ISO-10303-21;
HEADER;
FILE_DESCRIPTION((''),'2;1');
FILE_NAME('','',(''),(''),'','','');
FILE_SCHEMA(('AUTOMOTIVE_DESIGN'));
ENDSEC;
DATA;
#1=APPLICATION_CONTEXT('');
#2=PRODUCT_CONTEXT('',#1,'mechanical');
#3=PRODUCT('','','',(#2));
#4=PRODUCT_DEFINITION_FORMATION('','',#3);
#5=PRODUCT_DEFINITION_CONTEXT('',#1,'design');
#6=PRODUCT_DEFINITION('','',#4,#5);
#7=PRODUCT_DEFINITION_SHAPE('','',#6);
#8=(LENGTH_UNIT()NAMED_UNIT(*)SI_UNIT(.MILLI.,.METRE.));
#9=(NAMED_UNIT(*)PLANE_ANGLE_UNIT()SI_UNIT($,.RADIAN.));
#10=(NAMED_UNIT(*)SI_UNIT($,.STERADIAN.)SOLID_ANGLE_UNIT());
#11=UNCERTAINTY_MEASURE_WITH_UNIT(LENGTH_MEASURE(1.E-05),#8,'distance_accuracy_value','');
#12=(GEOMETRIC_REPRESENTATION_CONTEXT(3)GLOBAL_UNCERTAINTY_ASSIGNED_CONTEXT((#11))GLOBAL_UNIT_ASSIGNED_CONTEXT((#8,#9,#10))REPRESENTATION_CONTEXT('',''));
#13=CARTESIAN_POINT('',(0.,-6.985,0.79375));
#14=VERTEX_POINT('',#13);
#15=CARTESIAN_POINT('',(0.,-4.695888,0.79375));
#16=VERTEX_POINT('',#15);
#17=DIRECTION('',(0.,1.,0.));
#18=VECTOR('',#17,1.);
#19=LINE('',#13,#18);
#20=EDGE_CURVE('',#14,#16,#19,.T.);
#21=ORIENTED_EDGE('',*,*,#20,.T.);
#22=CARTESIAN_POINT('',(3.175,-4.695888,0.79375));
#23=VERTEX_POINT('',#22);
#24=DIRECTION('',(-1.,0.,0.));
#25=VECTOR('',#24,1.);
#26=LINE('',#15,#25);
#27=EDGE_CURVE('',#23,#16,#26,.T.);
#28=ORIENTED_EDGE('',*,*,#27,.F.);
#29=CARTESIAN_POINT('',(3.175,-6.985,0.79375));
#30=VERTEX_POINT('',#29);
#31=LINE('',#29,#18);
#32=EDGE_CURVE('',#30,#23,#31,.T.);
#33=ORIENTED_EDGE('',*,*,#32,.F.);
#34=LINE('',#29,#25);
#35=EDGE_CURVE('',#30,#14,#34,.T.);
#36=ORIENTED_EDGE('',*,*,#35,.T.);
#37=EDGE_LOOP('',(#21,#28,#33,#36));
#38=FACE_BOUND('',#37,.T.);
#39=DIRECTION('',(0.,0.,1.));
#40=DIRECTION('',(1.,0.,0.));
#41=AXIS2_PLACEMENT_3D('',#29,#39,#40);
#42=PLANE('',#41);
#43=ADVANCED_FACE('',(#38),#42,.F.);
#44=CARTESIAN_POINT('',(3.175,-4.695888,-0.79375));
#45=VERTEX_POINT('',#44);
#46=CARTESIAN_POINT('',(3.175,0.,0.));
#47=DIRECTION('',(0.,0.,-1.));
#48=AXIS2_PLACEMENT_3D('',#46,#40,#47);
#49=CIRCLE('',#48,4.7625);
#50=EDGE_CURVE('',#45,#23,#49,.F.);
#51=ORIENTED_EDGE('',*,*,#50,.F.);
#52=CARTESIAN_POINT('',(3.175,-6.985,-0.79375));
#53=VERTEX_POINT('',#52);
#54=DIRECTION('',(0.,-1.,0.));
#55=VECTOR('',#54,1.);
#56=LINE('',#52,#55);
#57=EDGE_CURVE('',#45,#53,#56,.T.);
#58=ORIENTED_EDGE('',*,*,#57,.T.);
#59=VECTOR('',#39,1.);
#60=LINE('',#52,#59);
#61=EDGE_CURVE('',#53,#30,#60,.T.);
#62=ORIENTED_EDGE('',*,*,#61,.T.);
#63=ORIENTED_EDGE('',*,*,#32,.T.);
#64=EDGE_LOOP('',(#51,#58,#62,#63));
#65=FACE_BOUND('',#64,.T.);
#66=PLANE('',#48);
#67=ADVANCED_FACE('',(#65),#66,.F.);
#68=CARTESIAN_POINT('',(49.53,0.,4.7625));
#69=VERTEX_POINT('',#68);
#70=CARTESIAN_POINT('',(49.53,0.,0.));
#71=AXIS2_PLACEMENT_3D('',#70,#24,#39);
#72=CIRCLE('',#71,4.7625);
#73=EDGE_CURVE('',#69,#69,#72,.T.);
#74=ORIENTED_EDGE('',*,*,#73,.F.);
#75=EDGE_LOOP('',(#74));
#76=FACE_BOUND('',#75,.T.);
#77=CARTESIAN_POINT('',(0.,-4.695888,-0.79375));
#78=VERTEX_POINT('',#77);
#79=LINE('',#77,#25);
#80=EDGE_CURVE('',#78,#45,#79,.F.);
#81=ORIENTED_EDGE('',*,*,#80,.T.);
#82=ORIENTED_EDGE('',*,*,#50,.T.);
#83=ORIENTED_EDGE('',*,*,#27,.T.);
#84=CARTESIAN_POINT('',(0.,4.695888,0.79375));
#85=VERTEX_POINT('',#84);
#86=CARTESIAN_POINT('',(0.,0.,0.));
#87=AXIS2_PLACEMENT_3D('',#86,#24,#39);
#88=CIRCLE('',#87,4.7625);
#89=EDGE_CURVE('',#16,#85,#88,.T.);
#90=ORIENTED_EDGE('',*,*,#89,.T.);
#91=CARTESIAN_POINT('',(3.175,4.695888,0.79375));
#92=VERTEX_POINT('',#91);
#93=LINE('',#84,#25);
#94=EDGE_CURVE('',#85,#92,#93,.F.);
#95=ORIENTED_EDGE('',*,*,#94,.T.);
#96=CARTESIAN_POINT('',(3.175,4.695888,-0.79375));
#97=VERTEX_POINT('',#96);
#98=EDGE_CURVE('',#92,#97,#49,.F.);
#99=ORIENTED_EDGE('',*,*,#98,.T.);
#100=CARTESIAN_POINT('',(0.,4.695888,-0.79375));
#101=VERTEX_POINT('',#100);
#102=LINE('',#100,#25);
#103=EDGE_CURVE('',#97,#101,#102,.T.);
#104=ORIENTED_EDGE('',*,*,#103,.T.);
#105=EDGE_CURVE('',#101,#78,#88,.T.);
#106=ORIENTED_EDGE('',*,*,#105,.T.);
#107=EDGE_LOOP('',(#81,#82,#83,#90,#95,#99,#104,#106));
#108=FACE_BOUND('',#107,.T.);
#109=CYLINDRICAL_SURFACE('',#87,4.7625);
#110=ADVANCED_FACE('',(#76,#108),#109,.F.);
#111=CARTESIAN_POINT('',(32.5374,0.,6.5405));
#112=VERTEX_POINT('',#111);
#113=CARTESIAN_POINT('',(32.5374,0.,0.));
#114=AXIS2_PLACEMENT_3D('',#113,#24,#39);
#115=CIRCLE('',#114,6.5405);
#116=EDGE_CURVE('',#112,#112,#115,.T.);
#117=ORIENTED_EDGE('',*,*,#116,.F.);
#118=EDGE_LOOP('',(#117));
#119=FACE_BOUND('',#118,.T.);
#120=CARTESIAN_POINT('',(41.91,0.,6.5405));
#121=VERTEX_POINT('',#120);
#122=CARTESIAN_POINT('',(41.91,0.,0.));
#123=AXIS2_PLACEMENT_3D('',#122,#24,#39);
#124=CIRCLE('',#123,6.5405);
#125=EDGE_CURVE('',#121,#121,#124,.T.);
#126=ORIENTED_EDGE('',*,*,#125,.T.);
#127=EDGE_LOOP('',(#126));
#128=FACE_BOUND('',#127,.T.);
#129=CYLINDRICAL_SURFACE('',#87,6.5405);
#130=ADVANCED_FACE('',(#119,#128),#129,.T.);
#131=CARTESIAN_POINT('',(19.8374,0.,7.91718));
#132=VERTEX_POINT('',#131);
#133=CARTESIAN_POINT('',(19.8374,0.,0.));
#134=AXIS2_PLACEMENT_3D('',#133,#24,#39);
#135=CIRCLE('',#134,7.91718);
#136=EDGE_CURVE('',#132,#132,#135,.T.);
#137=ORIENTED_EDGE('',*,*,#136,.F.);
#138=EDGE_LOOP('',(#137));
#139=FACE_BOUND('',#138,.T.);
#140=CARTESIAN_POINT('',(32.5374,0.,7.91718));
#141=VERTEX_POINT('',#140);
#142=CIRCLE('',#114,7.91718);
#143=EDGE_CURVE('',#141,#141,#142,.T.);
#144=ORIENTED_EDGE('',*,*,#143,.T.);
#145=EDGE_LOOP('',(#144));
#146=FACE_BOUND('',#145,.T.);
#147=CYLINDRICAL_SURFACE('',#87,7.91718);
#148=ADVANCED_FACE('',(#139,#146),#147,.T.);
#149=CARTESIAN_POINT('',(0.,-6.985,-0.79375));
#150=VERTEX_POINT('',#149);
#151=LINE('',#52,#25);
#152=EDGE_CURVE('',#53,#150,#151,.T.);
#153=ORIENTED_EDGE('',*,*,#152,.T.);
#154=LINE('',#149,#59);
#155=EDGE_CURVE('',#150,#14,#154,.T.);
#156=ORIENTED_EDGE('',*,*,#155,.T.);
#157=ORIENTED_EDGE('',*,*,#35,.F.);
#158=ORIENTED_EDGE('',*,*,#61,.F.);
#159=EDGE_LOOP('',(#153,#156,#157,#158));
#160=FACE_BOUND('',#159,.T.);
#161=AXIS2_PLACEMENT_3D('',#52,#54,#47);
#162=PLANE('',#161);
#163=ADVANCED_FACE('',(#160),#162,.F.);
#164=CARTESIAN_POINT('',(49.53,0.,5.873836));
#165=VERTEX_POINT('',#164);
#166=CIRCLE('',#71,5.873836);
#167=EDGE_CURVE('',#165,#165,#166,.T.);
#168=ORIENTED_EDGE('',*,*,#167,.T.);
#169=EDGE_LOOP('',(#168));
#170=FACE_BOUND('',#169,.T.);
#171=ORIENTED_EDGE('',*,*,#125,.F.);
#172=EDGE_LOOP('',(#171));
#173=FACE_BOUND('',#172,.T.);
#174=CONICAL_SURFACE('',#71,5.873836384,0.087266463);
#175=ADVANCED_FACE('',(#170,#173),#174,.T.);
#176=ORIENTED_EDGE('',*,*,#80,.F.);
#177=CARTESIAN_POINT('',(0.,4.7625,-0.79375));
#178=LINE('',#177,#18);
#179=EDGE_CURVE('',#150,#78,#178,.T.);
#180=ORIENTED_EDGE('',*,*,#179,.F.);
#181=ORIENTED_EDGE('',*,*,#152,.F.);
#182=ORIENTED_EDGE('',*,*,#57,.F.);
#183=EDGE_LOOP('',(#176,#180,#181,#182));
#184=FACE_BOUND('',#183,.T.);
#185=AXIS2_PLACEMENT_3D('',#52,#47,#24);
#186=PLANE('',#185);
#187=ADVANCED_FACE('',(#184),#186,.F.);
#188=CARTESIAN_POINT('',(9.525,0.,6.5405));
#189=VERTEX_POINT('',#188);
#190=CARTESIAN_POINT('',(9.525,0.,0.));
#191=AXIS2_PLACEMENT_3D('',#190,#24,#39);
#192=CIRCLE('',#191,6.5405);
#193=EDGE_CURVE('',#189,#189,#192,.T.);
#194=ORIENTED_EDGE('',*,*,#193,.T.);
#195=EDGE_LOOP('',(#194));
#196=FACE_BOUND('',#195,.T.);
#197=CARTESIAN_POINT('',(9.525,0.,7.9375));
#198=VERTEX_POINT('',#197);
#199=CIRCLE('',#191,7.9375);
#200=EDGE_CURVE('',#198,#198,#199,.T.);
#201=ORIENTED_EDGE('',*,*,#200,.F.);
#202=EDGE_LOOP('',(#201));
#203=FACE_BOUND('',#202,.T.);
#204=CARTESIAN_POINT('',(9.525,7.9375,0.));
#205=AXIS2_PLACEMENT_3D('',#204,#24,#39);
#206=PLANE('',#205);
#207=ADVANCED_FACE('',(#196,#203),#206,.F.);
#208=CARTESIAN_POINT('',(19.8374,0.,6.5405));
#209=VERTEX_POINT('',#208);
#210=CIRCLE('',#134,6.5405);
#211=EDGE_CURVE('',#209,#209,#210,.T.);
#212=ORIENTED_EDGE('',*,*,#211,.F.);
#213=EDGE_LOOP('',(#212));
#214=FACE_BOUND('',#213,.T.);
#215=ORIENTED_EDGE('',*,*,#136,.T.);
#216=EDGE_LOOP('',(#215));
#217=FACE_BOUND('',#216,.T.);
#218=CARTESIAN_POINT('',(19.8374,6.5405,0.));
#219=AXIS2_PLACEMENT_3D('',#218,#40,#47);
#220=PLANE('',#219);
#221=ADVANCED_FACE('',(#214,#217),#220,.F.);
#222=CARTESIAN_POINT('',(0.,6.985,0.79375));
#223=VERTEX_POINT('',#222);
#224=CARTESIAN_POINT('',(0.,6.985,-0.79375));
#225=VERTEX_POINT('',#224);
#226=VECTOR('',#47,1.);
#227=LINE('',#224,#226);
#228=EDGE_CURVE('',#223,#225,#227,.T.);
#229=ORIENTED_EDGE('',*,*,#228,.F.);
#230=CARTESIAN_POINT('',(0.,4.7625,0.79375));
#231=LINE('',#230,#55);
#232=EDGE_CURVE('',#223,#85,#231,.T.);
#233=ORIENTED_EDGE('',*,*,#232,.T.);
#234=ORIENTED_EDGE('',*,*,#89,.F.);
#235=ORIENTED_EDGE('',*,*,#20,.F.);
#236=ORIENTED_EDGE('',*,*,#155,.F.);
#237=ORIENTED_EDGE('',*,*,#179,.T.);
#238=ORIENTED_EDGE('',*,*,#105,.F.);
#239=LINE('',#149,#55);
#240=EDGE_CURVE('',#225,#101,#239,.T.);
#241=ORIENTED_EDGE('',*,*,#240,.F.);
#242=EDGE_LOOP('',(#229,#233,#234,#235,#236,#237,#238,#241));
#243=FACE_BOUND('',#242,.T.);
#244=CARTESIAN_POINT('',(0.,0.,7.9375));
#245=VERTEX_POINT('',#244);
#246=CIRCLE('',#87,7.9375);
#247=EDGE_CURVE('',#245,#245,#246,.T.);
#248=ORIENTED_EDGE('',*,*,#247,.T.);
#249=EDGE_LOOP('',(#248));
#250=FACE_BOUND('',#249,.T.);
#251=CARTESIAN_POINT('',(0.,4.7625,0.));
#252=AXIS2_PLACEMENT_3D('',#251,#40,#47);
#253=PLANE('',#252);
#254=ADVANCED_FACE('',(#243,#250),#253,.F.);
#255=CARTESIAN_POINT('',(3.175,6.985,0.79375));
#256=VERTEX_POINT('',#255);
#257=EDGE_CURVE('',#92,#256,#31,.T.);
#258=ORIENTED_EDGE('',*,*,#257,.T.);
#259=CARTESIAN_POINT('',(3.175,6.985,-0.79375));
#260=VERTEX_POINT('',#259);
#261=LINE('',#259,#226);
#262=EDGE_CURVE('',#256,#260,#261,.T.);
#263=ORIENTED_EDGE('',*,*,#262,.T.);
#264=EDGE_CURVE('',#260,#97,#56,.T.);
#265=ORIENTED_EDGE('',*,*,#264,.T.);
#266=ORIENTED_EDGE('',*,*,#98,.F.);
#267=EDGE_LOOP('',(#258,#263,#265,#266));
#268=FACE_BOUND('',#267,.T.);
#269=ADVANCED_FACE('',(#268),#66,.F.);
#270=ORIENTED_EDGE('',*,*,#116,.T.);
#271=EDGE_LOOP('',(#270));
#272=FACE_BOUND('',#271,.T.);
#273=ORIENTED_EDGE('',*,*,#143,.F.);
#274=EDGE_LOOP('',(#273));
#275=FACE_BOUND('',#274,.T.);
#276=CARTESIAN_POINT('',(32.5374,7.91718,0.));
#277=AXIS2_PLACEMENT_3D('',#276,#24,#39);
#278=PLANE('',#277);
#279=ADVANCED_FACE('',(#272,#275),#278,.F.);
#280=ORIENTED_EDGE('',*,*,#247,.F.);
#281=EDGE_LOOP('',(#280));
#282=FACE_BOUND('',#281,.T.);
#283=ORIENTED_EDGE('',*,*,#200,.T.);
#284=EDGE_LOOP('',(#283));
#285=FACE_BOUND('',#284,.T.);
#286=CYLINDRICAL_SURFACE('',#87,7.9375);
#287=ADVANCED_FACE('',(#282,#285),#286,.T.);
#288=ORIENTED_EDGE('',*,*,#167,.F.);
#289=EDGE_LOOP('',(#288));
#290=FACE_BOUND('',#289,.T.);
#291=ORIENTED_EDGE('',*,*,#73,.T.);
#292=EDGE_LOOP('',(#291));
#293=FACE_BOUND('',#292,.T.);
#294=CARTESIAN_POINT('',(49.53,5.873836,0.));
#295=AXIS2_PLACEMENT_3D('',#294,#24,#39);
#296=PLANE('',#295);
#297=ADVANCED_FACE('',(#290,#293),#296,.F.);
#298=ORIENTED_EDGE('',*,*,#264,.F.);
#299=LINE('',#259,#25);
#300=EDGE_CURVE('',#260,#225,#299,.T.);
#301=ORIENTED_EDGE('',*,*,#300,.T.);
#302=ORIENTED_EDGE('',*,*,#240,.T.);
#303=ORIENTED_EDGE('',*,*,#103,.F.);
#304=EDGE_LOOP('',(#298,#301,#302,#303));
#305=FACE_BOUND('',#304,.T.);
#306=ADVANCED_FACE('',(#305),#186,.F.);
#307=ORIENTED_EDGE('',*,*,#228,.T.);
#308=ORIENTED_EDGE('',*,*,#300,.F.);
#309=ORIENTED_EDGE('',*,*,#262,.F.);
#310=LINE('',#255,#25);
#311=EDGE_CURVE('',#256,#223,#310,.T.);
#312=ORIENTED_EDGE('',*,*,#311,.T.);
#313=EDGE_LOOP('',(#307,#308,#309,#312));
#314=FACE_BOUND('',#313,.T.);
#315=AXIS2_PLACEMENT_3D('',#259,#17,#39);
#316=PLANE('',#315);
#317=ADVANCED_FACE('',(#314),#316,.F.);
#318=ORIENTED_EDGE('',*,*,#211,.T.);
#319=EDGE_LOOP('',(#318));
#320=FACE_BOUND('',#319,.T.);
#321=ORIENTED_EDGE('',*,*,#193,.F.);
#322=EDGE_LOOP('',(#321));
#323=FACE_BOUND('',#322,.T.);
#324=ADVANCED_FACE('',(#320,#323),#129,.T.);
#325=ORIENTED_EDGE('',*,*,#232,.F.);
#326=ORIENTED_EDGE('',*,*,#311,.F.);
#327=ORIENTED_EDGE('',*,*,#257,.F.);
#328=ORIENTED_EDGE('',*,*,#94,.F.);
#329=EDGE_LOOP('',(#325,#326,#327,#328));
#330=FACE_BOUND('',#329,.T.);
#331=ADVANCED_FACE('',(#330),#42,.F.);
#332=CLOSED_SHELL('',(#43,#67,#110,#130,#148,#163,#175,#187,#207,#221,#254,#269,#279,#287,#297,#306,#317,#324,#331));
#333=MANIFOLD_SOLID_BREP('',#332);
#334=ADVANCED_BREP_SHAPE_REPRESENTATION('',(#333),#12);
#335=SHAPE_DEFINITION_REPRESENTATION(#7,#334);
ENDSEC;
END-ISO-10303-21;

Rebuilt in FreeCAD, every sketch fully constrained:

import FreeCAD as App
import Part
import Sketcher
from FreeCAD import Vector
Q = App.Units.Quantity

doc = App.newDocument("Part")
body = doc.addObject("PartDesign::Body", "Body")

# Sketch on XY plane
sketch1 = body.newObject("Sketcher::SketchObject", "Sketch")
sketch1.AttachmentSupport = (doc.getObject("XY_Plane"), [""])
sketch1.MapMode = "FlatFace"
sketch1.addGeometry(Part.LineSegment(Vector(0, 7.9, 0), Vector(0, 4.8, 0)), False)
sketch1.addGeometry(Part.LineSegment(Vector(0, 4.8, 0), Vector(49.5, 4.8, 0)), False)
sketch1.addGeometry(Part.LineSegment(Vector(49.5, 4.8, 0), Vector(49.5, 5.9, 0)), False)
sketch1.addGeometry(Part.LineSegment(Vector(49.5, 5.9, 0), Vector(41.9, 6.5, 0)), False)
sketch1.addGeometry(Part.LineSegment(Vector(41.9, 6.5, 0), Vector(32.5, 6.5, 0)), False)
sketch1.addGeometry(Part.LineSegment(Vector(32.5, 6.5, 0), Vector(32.5, 7.9, 0)), False)
sketch1.addGeometry(Part.LineSegment(Vector(32.5, 7.9, 0), Vector(19.8, 7.9, 0)), False)
sketch1.addGeometry(Part.LineSegment(Vector(19.8, 7.9, 0), Vector(19.8, 6.5, 0)), False)
sketch1.addGeometry(Part.LineSegment(Vector(19.8, 6.5, 0), Vector(9.5, 6.5, 0)), False)
sketch1.addGeometry(Part.LineSegment(Vector(9.5, 6.5, 0), Vector(9.5, 7.9, 0)), False)
sketch1.addGeometry(Part.LineSegment(Vector(9.5, 7.9, 0), Vector(0, 7.9, 0)), False)
sketch1.addConstraint(Sketcher.Constraint("Coincident", 0, 2, 1, 1))
sketch1.addConstraint(Sketcher.Constraint("Coincident", 1, 2, 2, 1))
sketch1.addConstraint(Sketcher.Constraint("Coincident", 2, 2, 3, 1))
sketch1.addConstraint(Sketcher.Constraint("Coincident", 3, 2, 4, 1))
sketch1.addConstraint(Sketcher.Constraint("Coincident", 4, 2, 5, 1))
sketch1.addConstraint(Sketcher.Constraint("Coincident", 5, 2, 6, 1))
sketch1.addConstraint(Sketcher.Constraint("Coincident", 6, 2, 7, 1))
sketch1.addConstraint(Sketcher.Constraint("Coincident", 7, 2, 8, 1))
sketch1.addConstraint(Sketcher.Constraint("Coincident", 8, 2, 9, 1))
sketch1.addConstraint(Sketcher.Constraint("Coincident", 9, 2, 10, 1))
sketch1.addConstraint(Sketcher.Constraint("Coincident", 10, 2, 0, 1))
sketch1.addConstraint(Sketcher.Constraint("Vertical", 0))
sketch1.addConstraint(Sketcher.Constraint("Horizontal", 1))
sketch1.addConstraint(Sketcher.Constraint("Vertical", 2))
sketch1.addConstraint(Sketcher.Constraint("Horizontal", 4))
sketch1.addConstraint(Sketcher.Constraint("Vertical", 5))
sketch1.addConstraint(Sketcher.Constraint("Horizontal", 6))
sketch1.addConstraint(Sketcher.Constraint("Vertical", 7))
sketch1.addConstraint(Sketcher.Constraint("Horizontal", 8))
sketch1.addConstraint(Sketcher.Constraint("Vertical", 9))
sketch1.addConstraint(Sketcher.Constraint("Horizontal", 10))
sketch1.addConstraint(Sketcher.Constraint("PointOnObject", 0, 2, -2))
sketch1.addConstraint(Sketcher.Constraint("Horizontal", 4, 2, 7, 2))
sketch1.addConstraint(Sketcher.Constraint("DistanceX", 6, 2, 6, 1, Q("0.5 in")))
sketch1.addConstraint(Sketcher.Constraint("Angle", 3, Q("175 deg")))
sketch1.addConstraint(Sketcher.Constraint("DistanceX", 1, 1, 1, 2, Q("1.95 in")))
sketch1.addConstraint(Sketcher.Constraint("DistanceX", 3, 2, 2, 2, Q("0.3 in")))
sketch1.addConstraint(Sketcher.Constraint("DistanceX", 4, 2, 4, 1, Q("0.369 in")))
sketch1.addConstraint(Sketcher.Constraint("DistanceX", 8, 2, 8, 1, Q("0.406 in")))
sketch1.addConstraint(Sketcher.Constraint("DistanceY", 0, 2, 0, 1, Q("0.125 in")))
sketch1.addConstraint(Sketcher.Constraint("DistanceY", 9, 1, 9, 2, Q("0.055 in")))
sketch1.addConstraint(Sketcher.Constraint("DistanceY", 5, 1, 5, 2, Q("0.0542 in")))
sketch1.addConstraint(Sketcher.Constraint("DistanceY", -1, 1, 0, 2, Q("0.1875 in")))
revolution = body.newObject("PartDesign::Revolution", "Revolution")
revolution.Profile = sketch1
revolution.ReferenceAxis = (sketch1, ["H_Axis"])
revolution.Angle = 360

# Sketch on YZ plane
sketch2 = body.newObject("Sketcher::SketchObject", "Sketch001")
sketch2.AttachmentSupport = (doc.getObject("YZ_Plane"), [""])
sketch2.MapMode = "FlatFace"
sketch2.addGeometry(Part.LineSegment(Vector(7, -0.8, 0), Vector(-7, -0.8, 0)), False)
sketch2.addGeometry(Part.LineSegment(Vector(-7, -0.8, 0), Vector(-7, 0.8, 0)), False)
sketch2.addGeometry(Part.LineSegment(Vector(-7, 0.8, 0), Vector(7, 0.8, 0)), False)
sketch2.addGeometry(Part.LineSegment(Vector(7, 0.8, 0), Vector(7, -0.8, 0)), False)
sketch2.addConstraint(Sketcher.Constraint("Coincident", 0, 2, 1, 1))
sketch2.addConstraint(Sketcher.Constraint("Coincident", 1, 2, 2, 1))
sketch2.addConstraint(Sketcher.Constraint("Coincident", 2, 2, 3, 1))
sketch2.addConstraint(Sketcher.Constraint("Coincident", 3, 2, 0, 1))
sketch2.addConstraint(Sketcher.Constraint("Horizontal", 0))
sketch2.addConstraint(Sketcher.Constraint("Vertical", 1))
sketch2.addConstraint(Sketcher.Constraint("Horizontal", 2))
sketch2.addConstraint(Sketcher.Constraint("Vertical", 3))
sketch2.addConstraint(Sketcher.Constraint("Symmetric", 0, 2, 2, 2, -1, 1))
sketch2.addConstraint(Sketcher.Constraint("DistanceX", 0, 2, 0, 1, Q("0.55 in")))
sketch2.addConstraint(Sketcher.Constraint("DistanceY", 1, 1, 1, 2, Q("0.0625 in")))
pocket1 = body.newObject("PartDesign::Pocket", "Pocket")
pocket1.Profile = sketch2
pocket1.Length = Q("0.125 in")
pocket1.Reversed = True

doc.recompute()
